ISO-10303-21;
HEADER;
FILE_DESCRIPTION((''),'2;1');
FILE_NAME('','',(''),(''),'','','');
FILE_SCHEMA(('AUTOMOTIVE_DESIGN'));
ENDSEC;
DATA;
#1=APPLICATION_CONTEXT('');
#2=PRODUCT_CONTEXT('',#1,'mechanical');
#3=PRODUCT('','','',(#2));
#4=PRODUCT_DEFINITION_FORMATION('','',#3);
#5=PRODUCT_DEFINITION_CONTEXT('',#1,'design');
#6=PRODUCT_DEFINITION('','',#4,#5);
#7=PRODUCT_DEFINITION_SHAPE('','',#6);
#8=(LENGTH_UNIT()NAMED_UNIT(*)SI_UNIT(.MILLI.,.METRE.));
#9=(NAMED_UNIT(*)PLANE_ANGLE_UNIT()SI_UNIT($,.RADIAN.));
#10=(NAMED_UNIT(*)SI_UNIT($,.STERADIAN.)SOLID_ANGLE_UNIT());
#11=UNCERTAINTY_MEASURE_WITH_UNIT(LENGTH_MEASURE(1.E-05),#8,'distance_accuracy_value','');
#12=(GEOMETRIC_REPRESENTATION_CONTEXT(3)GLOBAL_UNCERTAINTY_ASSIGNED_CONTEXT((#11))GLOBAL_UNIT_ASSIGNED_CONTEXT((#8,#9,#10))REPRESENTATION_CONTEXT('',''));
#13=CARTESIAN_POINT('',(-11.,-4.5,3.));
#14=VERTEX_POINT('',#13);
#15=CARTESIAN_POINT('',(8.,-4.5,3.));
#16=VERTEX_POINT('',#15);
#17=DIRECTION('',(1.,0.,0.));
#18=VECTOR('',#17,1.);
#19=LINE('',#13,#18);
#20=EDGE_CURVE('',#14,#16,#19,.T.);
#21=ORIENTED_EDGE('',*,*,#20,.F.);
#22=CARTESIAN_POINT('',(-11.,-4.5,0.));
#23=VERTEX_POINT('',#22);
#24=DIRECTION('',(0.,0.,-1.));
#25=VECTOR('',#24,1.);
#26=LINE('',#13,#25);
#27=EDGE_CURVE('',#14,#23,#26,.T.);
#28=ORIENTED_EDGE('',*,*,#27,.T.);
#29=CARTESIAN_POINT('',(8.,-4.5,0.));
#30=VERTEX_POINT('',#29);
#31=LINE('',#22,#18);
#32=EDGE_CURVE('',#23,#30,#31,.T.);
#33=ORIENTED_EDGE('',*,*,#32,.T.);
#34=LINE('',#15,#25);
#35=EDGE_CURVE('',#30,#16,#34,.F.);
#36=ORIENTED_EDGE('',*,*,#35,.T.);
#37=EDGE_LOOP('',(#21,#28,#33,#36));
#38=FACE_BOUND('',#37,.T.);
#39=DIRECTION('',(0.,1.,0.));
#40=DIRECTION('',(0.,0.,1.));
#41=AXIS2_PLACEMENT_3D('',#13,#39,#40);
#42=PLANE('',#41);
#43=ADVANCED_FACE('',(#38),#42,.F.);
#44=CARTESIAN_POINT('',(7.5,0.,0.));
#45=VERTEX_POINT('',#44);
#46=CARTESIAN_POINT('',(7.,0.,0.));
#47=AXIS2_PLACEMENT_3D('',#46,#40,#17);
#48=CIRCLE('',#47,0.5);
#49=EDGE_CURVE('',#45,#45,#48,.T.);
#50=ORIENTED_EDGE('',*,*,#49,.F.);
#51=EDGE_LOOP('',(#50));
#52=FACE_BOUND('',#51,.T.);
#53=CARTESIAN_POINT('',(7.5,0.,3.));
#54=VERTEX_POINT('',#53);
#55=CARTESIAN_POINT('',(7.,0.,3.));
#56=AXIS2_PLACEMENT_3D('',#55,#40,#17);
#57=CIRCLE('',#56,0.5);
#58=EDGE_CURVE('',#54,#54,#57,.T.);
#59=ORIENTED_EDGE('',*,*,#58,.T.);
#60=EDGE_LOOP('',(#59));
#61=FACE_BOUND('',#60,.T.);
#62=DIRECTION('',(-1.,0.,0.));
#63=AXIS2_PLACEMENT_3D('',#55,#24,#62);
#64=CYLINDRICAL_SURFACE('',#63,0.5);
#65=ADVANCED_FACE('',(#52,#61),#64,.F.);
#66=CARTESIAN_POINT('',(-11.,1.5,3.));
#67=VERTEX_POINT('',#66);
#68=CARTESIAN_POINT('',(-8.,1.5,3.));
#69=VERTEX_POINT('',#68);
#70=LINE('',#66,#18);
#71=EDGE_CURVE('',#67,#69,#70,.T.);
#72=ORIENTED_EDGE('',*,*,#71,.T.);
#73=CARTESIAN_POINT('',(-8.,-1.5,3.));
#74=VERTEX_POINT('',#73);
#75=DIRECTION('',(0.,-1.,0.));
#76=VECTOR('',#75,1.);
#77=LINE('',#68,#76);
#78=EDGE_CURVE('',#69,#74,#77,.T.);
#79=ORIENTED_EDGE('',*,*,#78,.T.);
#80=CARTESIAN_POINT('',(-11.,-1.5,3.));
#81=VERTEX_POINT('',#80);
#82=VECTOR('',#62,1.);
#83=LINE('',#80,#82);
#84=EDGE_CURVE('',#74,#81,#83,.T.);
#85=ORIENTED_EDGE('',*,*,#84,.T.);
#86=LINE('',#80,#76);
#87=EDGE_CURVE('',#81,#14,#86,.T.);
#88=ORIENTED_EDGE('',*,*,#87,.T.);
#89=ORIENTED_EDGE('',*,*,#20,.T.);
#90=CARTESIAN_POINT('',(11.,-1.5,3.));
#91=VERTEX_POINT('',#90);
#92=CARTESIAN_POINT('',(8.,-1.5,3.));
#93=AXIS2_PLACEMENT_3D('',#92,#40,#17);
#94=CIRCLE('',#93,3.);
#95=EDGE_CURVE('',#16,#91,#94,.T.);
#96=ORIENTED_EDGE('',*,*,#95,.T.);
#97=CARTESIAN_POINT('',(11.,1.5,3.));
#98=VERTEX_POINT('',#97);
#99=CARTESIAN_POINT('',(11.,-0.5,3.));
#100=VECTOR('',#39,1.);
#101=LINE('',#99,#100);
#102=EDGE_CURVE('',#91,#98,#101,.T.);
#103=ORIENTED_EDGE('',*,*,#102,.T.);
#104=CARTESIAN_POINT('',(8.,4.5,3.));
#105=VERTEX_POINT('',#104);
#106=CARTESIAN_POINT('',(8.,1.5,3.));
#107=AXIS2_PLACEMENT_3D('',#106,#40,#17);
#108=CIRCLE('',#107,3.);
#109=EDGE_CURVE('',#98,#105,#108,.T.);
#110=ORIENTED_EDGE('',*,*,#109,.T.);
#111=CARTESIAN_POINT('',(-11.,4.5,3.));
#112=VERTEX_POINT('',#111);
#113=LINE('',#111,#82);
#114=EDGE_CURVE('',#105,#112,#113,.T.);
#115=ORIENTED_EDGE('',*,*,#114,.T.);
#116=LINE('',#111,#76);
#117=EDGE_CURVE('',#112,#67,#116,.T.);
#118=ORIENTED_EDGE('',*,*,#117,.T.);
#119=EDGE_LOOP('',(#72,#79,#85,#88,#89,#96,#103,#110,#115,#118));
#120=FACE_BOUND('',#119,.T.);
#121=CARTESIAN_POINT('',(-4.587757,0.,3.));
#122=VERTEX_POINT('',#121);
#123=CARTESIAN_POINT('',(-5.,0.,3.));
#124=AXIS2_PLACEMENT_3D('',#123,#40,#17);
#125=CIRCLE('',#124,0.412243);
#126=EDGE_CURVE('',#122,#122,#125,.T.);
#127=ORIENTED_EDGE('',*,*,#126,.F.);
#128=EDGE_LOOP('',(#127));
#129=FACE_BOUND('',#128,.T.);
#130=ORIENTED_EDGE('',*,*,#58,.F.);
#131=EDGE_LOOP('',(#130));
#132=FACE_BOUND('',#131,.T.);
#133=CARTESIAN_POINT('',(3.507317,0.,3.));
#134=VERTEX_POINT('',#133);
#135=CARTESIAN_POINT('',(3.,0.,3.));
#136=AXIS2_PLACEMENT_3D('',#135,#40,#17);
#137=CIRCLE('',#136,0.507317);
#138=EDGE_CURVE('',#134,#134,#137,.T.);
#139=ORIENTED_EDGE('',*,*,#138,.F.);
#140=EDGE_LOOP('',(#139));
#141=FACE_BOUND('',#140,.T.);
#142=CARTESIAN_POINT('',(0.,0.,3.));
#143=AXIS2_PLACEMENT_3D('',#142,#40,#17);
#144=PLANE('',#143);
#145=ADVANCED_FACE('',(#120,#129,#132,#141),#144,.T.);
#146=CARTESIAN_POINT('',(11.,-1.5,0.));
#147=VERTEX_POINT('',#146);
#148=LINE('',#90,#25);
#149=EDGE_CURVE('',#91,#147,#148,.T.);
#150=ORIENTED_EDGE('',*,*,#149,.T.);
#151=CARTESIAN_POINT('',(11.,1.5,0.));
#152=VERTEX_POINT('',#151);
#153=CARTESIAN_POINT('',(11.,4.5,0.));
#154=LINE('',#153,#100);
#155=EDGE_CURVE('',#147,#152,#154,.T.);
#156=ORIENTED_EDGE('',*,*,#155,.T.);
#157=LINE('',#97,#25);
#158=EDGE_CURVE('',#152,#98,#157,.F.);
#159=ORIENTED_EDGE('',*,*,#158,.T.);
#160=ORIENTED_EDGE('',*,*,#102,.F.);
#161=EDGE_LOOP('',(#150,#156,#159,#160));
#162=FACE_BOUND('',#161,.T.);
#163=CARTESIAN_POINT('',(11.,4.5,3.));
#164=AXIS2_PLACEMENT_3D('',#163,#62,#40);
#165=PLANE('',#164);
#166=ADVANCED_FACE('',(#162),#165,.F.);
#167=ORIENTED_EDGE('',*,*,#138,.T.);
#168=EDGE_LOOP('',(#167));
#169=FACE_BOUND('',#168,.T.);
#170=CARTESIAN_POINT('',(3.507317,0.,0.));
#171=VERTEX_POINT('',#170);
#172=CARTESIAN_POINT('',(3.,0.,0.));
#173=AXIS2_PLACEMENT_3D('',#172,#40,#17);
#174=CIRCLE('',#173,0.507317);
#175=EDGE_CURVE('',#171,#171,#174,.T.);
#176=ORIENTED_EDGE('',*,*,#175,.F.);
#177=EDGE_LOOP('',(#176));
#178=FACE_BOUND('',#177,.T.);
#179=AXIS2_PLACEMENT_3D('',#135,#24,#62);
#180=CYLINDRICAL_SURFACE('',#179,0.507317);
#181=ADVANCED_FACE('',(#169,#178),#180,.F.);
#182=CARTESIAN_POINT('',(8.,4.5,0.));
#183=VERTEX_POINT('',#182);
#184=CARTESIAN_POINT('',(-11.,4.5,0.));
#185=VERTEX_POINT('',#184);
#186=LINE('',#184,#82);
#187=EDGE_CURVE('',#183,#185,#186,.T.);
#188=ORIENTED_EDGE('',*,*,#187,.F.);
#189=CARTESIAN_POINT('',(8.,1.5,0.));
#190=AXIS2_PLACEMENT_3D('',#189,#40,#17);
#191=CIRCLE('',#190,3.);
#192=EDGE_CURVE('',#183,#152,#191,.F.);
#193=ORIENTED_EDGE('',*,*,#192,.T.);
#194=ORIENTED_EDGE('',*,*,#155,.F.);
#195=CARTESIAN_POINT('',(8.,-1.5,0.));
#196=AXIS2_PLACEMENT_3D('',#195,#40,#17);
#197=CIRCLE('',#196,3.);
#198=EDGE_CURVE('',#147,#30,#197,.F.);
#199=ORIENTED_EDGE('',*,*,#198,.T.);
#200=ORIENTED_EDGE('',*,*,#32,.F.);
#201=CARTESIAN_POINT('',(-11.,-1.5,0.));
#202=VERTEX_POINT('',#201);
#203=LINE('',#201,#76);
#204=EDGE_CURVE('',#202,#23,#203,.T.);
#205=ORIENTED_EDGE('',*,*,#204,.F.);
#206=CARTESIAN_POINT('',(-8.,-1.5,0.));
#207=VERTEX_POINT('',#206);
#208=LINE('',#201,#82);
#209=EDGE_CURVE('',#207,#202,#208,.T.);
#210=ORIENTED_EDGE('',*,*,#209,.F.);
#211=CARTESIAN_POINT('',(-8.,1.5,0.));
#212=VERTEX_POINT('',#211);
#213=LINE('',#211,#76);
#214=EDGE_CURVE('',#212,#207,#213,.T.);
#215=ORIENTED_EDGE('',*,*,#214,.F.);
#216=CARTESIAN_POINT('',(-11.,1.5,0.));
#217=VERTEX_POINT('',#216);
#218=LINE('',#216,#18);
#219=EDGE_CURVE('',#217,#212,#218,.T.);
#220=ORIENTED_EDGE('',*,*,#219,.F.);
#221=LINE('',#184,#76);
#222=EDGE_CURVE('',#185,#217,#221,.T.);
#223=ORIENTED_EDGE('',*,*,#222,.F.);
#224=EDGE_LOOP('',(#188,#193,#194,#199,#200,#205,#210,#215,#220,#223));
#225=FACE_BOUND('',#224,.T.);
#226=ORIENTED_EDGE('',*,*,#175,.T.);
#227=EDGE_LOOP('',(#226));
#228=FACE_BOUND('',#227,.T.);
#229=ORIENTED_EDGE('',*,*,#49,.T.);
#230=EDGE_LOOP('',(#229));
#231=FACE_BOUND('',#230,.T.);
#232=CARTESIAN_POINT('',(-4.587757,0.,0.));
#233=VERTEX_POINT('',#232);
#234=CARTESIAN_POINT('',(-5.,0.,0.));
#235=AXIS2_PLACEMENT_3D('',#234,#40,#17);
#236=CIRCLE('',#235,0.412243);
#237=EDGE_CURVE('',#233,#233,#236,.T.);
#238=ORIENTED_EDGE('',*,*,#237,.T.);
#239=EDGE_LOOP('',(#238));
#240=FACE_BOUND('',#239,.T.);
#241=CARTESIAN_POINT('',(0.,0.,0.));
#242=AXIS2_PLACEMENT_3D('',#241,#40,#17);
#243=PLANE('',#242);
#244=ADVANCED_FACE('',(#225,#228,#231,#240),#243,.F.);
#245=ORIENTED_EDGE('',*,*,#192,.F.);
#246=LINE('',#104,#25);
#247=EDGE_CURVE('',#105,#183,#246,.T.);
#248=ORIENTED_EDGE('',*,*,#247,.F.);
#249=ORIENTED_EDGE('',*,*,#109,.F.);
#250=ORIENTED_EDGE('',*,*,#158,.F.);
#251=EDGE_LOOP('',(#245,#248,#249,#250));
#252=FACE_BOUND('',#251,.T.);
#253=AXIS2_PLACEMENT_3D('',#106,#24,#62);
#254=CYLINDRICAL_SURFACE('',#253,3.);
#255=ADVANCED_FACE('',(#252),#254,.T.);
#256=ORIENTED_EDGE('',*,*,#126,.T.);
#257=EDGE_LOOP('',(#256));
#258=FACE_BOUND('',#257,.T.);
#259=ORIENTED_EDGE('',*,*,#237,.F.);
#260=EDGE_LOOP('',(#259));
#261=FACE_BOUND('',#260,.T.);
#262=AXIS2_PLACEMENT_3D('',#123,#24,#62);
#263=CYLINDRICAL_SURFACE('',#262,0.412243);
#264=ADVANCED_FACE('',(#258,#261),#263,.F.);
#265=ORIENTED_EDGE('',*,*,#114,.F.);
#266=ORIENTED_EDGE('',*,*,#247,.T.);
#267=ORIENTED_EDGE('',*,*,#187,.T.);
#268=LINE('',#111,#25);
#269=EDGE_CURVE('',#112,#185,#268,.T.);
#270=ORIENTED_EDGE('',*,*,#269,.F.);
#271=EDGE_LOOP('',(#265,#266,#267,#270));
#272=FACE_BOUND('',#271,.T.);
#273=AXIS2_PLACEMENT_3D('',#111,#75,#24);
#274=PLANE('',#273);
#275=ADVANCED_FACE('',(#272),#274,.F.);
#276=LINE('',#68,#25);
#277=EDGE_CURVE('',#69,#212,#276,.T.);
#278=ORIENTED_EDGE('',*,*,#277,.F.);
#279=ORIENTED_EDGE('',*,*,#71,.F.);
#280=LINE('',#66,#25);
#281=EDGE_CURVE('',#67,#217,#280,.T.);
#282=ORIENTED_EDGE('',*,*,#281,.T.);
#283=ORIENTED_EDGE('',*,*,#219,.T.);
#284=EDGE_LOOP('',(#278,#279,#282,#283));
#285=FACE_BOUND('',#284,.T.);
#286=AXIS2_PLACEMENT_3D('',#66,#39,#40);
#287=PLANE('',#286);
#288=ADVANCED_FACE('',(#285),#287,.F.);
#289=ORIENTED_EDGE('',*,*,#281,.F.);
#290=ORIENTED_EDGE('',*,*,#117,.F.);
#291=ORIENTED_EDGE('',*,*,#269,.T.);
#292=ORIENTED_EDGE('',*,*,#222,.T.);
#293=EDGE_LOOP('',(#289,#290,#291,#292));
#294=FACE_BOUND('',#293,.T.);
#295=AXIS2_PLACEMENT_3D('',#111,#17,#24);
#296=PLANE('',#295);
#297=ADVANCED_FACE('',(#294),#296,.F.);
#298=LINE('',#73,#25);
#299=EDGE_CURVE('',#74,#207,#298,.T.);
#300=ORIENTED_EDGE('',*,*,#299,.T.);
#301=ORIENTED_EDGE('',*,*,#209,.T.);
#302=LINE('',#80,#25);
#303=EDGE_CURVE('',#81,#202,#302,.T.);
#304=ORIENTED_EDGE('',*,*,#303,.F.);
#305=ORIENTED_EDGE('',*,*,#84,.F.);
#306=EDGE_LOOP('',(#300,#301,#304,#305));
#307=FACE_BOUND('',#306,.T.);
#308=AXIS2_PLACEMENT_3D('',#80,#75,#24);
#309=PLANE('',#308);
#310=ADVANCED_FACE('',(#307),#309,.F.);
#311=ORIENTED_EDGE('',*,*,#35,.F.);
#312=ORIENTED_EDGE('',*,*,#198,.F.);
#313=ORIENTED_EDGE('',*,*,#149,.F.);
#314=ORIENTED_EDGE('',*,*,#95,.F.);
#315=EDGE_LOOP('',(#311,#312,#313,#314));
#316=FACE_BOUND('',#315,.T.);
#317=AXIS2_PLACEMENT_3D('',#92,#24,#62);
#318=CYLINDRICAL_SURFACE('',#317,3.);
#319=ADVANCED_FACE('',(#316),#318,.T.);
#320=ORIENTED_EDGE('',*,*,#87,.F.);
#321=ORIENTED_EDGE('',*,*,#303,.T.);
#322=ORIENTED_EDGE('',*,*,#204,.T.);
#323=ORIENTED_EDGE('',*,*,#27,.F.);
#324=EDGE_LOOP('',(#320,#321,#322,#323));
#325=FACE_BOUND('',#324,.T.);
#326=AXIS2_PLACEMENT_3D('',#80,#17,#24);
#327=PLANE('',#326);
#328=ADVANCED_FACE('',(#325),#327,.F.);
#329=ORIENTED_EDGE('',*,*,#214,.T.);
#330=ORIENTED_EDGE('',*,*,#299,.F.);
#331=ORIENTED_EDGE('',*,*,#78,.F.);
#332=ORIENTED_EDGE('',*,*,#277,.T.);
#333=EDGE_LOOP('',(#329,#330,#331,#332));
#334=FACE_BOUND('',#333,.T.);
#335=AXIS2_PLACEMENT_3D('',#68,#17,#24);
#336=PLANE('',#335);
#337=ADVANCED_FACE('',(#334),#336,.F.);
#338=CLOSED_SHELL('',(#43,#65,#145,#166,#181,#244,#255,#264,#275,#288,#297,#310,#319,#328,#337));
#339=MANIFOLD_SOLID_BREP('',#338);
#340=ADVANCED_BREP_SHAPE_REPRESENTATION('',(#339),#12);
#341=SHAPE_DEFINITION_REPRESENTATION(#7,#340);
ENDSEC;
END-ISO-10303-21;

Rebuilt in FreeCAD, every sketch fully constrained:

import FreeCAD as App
import Part
import Sketcher
from FreeCAD import Vector
Q = App.Units.Quantity


def edges_at(feature, points):
    """Names of the edges that pass closest to the given points."""
    edges = feature.Shape.Edges
    near = lambda p: min(range(len(edges)), key=lambda i: edges[i].distToShape(Part.Vertex(*p))[0])
    return sorted({f"Edge{near(p) + 1}" for p in points})

doc = App.newDocument("Part")
body = doc.addObject("PartDesign::Body", "Body")

# Sketch on XY plane
sketch1 = doc.addObject("Sketcher::SketchObject", "Sketch")
body.addObject(sketch1)
sketch1.AttachmentSupport = (doc.XY_Plane, [""])
sketch1.MapMode = "FlatFace"
sketch1.addGeometry([
    Part.LineSegment(Vector(11, 4.5, 0), Vector(-11, 4.5, 0)),  # 0
    Part.LineSegment(Vector(-11, 4.5, 0), Vector(-11, 1.5, 0)),  # 1
    Part.LineSegment(Vector(-11, 1.5, 0), Vector(-8, 1.5, 0)),  # 2
    Part.LineSegment(Vector(-8, 1.5, 0), Vector(-8, -1.5, 0)),  # 3
    Part.LineSegment(Vector(-8, -1.5, 0), Vector(-11, -1.5, 0)),  # 4
    Part.LineSegment(Vector(-11, -1.5, 0), Vector(-11, -4.5, 0)),  # 5
    Part.LineSegment(Vector(-11, -4.5, 0), Vector(11, -4.5, 0)),  # 6
    Part.LineSegment(Vector(11, -4.5, 0), Vector(11, 4.5, 0)),  # 7
    Part.Circle(Vector(7, 0, 0), Vector(0, 0, 1), 0.5),  # 8
    Part.Circle(Vector(3, 0, 0), Vector(0, 0, 1), 0.51),  # 9
    Part.Circle(Vector(-5, 0, 0), Vector(0, 0, 1), 0.41),  # 10
], False)
sketch1.addConstraint([
    Sketcher.Constraint("Coincident", 0, 2, 1, 1),
    Sketcher.Constraint("Coincident", 1, 2, 2, 1),
    Sketcher.Constraint("Coincident", 2, 2, 3, 1),
    Sketcher.Constraint("Coincident", 3, 2, 4, 1),
    Sketcher.Constraint("Coincident", 4, 2, 5, 1),
    Sketcher.Constraint("Coincident", 5, 2, 6, 1),
    Sketcher.Constraint("Coincident", 6, 2, 7, 1),
    Sketcher.Constraint("Coincident", 7, 2, 0, 1),
    Sketcher.Constraint("Horizontal", 0),
    Sketcher.Constraint("Vertical", 1),
    Sketcher.Constraint("Horizontal", 2),
    Sketcher.Constraint("Vertical", 3),
    Sketcher.Constraint("Horizontal", 4),
    Sketcher.Constraint("Vertical", 5),
    Sketcher.Constraint("Horizontal", 6),
    Sketcher.Constraint("Vertical", 7),
    Sketcher.Constraint("Symmetric", 0, 2, 6, 2, -1, 1),
    Sketcher.Constraint("Symmetric", 1, 2, 4, 2, -1),
    Sketcher.Constraint("PointOnObject", 8, 3, -1),
    Sketcher.Constraint("PointOnObject", 9, 3, -1),
    Sketcher.Constraint("PointOnObject", 10, 3, -1),
    Sketcher.Constraint("Equal", 4, 1),
    Sketcher.Constraint("Equal", 1, 3),
    Sketcher.Constraint("Diameter", 8, Q("1 mm")),
    Sketcher.Constraint("DistanceX", 0, 2, 0, 1, Q("22 mm")),
    Sketcher.Constraint("DistanceX", 2, 1, 2, 2, Q("3 mm")),
    Sketcher.Constraint("DistanceX", -1, 1, 8, 3, Q("7 mm")),
    Sketcher.Constraint("DistanceX", -1, 1, 9, 3, Q("3 mm")),
    Sketcher.Constraint("DistanceX", 10, 3, -1, 1, Q("5 mm")),
    Sketcher.Constraint("Diameter", 9, Q("1.014633 mm")),
    Sketcher.Constraint("Diameter", 10, Q("0.824486 mm")),
])
pad1 = doc.addObject("PartDesign::Pad", "Pad")
body.addObject(pad1)
pad1.Profile = sketch1
pad1.Length = 3
doc.recompute()

fillet = doc.addObject("PartDesign::Fillet", "Fillet")
body.addObject(fillet)
fillet.Base = (pad1, edges_at(pad1, [(11, -4.5, 1.5), (11, 4.5, 1.5)]))
fillet.Radius = 3

doc.recompute()
